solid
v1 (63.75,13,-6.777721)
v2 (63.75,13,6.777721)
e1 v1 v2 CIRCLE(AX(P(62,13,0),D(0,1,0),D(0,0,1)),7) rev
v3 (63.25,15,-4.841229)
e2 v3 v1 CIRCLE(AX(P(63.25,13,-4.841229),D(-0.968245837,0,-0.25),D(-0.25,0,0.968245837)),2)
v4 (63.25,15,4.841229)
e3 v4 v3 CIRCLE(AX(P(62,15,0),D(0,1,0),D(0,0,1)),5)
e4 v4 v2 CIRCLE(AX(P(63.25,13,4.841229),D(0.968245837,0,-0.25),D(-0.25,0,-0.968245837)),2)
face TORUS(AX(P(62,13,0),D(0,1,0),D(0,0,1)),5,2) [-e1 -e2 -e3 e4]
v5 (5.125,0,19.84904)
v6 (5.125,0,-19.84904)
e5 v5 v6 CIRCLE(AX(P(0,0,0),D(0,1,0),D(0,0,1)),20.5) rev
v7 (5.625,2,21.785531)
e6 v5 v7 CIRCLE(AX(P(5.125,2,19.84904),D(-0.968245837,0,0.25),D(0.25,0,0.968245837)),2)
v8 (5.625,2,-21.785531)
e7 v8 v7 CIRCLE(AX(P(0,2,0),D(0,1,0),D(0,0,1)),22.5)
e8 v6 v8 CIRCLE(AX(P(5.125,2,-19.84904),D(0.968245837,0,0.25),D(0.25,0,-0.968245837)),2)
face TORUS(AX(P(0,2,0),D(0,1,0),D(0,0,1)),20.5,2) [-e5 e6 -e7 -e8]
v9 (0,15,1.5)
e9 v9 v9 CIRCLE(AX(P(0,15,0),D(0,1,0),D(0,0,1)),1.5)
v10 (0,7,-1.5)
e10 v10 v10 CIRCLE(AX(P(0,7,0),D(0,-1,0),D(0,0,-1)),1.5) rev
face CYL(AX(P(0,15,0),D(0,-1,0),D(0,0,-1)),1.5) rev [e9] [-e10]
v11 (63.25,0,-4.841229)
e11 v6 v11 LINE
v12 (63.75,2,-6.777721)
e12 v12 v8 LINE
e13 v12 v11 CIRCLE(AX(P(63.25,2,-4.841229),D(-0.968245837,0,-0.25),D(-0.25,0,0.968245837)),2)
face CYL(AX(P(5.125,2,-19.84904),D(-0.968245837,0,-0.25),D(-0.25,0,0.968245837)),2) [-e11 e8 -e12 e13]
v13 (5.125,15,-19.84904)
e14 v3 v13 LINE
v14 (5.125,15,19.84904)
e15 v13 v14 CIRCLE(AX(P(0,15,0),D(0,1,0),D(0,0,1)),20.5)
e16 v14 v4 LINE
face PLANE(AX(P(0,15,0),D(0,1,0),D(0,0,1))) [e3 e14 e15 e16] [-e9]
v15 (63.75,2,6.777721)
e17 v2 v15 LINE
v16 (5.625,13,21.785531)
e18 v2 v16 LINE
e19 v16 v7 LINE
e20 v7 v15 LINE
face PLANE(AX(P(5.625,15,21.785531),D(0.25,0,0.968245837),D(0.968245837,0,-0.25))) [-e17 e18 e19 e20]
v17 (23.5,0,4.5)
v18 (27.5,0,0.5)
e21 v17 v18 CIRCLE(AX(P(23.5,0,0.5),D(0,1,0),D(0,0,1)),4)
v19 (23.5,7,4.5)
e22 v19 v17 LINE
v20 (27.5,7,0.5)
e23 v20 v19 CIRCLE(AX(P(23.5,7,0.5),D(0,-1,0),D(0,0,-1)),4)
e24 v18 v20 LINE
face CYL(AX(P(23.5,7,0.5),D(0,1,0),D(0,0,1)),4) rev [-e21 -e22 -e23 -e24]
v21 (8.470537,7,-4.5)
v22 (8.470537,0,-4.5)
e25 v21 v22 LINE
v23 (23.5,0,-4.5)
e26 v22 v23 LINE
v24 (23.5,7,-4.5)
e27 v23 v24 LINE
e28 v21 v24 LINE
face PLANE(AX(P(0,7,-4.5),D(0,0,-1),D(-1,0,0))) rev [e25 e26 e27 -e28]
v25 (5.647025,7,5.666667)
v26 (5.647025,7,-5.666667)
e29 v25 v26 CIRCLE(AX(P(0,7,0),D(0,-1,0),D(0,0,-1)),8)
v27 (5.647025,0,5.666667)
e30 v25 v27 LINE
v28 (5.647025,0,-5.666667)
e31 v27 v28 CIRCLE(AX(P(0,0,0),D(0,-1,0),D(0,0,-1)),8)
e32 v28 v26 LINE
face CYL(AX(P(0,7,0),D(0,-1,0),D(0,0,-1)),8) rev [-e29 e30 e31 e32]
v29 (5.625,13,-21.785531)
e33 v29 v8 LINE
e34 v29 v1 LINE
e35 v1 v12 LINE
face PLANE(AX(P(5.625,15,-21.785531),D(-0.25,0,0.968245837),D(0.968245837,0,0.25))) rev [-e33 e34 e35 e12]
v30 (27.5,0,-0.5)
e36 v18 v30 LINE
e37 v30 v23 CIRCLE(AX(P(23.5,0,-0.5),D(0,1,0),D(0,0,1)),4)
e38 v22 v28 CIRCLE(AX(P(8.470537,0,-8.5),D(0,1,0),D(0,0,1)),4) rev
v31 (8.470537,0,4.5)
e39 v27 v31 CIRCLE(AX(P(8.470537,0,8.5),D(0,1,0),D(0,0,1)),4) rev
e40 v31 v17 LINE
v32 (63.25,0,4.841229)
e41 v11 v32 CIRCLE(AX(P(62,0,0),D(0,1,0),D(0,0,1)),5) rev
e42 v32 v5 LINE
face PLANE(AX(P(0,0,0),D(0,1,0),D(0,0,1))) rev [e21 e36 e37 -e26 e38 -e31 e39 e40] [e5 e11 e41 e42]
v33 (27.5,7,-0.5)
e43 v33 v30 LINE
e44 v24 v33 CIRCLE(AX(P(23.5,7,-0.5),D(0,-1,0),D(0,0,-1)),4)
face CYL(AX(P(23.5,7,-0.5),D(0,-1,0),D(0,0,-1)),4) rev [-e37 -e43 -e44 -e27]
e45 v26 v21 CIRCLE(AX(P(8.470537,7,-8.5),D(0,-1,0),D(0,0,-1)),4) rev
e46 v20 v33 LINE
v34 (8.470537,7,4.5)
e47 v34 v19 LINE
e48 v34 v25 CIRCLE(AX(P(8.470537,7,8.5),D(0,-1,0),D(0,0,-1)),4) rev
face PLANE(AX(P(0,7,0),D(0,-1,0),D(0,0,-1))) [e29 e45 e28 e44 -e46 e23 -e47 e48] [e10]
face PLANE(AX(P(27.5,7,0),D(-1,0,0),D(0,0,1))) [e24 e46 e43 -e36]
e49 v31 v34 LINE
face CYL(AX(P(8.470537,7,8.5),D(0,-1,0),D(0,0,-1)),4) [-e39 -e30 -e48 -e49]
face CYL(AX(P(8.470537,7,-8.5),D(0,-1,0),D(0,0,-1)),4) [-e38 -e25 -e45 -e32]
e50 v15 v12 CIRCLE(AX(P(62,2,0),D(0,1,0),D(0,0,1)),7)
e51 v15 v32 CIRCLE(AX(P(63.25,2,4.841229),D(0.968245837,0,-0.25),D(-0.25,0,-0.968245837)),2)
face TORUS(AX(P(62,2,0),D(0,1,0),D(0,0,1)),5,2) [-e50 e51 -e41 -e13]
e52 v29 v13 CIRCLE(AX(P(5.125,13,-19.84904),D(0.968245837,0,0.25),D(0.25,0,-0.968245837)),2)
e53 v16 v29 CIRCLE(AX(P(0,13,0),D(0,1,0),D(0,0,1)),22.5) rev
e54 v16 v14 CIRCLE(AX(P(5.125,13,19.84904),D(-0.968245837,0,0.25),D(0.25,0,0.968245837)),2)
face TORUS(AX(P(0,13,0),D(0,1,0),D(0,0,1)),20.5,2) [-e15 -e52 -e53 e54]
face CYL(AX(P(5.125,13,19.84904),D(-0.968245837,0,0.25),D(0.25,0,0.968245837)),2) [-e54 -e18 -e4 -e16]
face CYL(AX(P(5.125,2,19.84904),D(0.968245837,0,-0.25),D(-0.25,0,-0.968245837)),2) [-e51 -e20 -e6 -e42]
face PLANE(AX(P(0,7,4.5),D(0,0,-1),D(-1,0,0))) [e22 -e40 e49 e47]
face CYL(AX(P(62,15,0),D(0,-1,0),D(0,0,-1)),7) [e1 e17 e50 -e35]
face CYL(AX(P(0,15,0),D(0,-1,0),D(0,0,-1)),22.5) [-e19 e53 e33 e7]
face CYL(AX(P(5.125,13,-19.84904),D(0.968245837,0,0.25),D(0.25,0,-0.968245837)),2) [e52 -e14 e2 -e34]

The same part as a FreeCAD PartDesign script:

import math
import FreeCAD as App
import Part
import Sketcher

V = App.Vector
Q = App.Units.Quantity


def edges_at(feature, points):
    """Names of the edges that pass closest to the given points."""
    edges = feature.Shape.Edges
    near = lambda p: min(range(len(edges)), key=lambda i: edges[i].distToShape(Part.Vertex(*p))[0])
    return sorted({f"Edge{near(p) + 1}" for p in points})

doc = App.newDocument("Part")
body = doc.addObject("PartDesign::Body", "Body")

sketch1 = body.newObject("Sketcher::SketchObject", "Sketch")
sketch1.AttachmentSupport = (doc.getObject("XZ_Plane"), [""])
sketch1.MapMode = "FlatFace"
sketch1.addGeometry([
    Part.ArcOfCircle(Part.Circle(V(0, 0, 0), V(0, 0, 1), 22.5), math.radians(76), math.radians(284)),
    Part.LineSegment(V(5.6, 21.8, 0), V(63.8, 6.8, 0)),
    Part.ArcOfCircle(Part.Circle(V(62, 0, 0), V(0, 0, 1), 7), math.radians(-76), math.radians(76)),
    Part.LineSegment(V(63.8, -6.8, 0), V(5.6, -21.8, 0)),
    Part.Circle(V(0, 0, 0), V(0, 0, 1), 1.5),
], False)
sketch1.addConstraint([
    Sketcher.Constraint("Tangent", 0, 1, 1, 1),
    Sketcher.Constraint("Tangent", 1, 2, 2, 2),
    Sketcher.Constraint("Tangent", 2, 1, 3, 1),
    Sketcher.Constraint("Tangent", 3, 2, 0, 2),
    Sketcher.Constraint("Coincident", 0, 3, -1, 1),
    Sketcher.Constraint("Coincident", 4, 3, -1, 1),
    Sketcher.Constraint("PointOnObject", 2, 3, -1),
    Sketcher.Constraint("Diameter", 4, Q("3 mm")),
    Sketcher.Constraint("Radius", 2, Q("7 mm")),
    Sketcher.Constraint("Radius", 0, Q("22.5 mm")),
    Sketcher.Constraint("DistanceX", -1, 1, 2, 3, Q("62 mm")),
])
pad1 = body.newObject("PartDesign::Pad", "Pad")
pad1.Profile = sketch1
pad1.Length = 15
pad1.Reversed = True
doc.recompute()

fillet = body.newObject("PartDesign::Fillet", "Fillet")
fillet.Base = (pad1, edges_at(pad1, [
    (34.688, 15, -14.282),
    (-22.5, 15, 0),
    (34.688, 15, 14.282),
    (69, 15, 0),
    (34.688, 0, 14.282),
    (-22.5, 0, 0),
    (34.688, 0, -14.282),
    (69, 0, 0),
]))
fillet.Radius = 2

sketch2 = body.newObject("Sketcher::SketchObject", "Sketch001")
sketch2.AttachmentSupport = (doc.getObject("XZ_Plane"), [""])
sketch2.MapMode = "FlatFace"
sketch2.addGeometry([
    Part.ArcOfCircle(Part.Circle(V(0, 0, 0), V(0, 0, 1), 8), math.radians(34), math.radians(326)),
    Part.LineSegment(V(6.6, -4.5, 0), V(27.5, -4.5, 0)),
    Part.LineSegment(V(27.5, -4.5, 0), V(27.5, 4.5, 0)),
    Part.LineSegment(V(27.5, 4.5, 0), V(6.6, 4.5, 0)),
    Part.ArcOfCircle(Part.Circle(V(0, 0, 0), V(0, 0, 1), 1.5), math.radians(90), math.radians(270)),
    Part.ArcOfCircle(Part.Circle(V(0, 0, 0), V(0, 0, 1), 1.5), math.radians(0), math.radians(90)),
    Part.ArcOfCircle(Part.Circle(V(0, 0, 0), V(0, 0, 1), 1.5), math.radians(-90), math.radians(0)),
], False)
sketch2.addConstraint([
    Sketcher.Constraint("Coincident", 0, 2, 1, 1),
    Sketcher.Constraint("Coincident", 1, 2, 2, 1),
    Sketcher.Constraint("Coincident", 2, 2, 3, 1),
    Sketcher.Constraint("Coincident", 3, 2, 0, 1),
    Sketcher.Constraint("Tangent", 4, 1, 5, 2),
    Sketcher.Constraint("Tangent", 5, 1, 6, 2),
    Sketcher.Constraint("Tangent", 6, 1, 4, 2),
    Sketcher.Constraint("Horizontal", 1),
    Sketcher.Constraint("Vertical", 2),
    Sketcher.Constraint("Horizontal", 3),
    Sketcher.Constraint("Coincident", 0, 3, -1, 1),
    Sketcher.Constraint("Coincident", 4, 3, -1, 1),
    Sketcher.Constraint("PointOnObject", 4, 1, -2),
    Sketcher.Constraint("PointOnObject", 5, 1, -1),
    Sketcher.Constraint("PointOnObject", 6, 1, -2),
    Sketcher.Constraint("Vertical", 0, 2, 3, 2),
    Sketcher.Constraint("Radius", 0, Q("8 mm")),
    Sketcher.Constraint("Radius", 4, Q("1.5 mm")),
    Sketcher.Constraint("DistanceY", 2, 1, 2, 2, Q("9 mm")),
    Sketcher.Constraint("DistanceX", -1, 1, 1, 2, Q("27.5 mm")),
])
pocket1 = body.newObject("PartDesign::Pocket", "Pocket")
pocket1.Profile = sketch2
pocket1.Length = 7
doc.recompute()

fillet2 = body.newObject("PartDesign::Fillet", "Fillet001")
fillet2.Base = (pocket1, edges_at(pocket1, [
    (6.614, 3.5, -4.5),
    (6.614, 3.5, 4.5),
    (27.5, 3.5, 4.5),
    (27.5, 3.5, -4.5),
]))
fillet2.Radius = 4

doc.recompute()
